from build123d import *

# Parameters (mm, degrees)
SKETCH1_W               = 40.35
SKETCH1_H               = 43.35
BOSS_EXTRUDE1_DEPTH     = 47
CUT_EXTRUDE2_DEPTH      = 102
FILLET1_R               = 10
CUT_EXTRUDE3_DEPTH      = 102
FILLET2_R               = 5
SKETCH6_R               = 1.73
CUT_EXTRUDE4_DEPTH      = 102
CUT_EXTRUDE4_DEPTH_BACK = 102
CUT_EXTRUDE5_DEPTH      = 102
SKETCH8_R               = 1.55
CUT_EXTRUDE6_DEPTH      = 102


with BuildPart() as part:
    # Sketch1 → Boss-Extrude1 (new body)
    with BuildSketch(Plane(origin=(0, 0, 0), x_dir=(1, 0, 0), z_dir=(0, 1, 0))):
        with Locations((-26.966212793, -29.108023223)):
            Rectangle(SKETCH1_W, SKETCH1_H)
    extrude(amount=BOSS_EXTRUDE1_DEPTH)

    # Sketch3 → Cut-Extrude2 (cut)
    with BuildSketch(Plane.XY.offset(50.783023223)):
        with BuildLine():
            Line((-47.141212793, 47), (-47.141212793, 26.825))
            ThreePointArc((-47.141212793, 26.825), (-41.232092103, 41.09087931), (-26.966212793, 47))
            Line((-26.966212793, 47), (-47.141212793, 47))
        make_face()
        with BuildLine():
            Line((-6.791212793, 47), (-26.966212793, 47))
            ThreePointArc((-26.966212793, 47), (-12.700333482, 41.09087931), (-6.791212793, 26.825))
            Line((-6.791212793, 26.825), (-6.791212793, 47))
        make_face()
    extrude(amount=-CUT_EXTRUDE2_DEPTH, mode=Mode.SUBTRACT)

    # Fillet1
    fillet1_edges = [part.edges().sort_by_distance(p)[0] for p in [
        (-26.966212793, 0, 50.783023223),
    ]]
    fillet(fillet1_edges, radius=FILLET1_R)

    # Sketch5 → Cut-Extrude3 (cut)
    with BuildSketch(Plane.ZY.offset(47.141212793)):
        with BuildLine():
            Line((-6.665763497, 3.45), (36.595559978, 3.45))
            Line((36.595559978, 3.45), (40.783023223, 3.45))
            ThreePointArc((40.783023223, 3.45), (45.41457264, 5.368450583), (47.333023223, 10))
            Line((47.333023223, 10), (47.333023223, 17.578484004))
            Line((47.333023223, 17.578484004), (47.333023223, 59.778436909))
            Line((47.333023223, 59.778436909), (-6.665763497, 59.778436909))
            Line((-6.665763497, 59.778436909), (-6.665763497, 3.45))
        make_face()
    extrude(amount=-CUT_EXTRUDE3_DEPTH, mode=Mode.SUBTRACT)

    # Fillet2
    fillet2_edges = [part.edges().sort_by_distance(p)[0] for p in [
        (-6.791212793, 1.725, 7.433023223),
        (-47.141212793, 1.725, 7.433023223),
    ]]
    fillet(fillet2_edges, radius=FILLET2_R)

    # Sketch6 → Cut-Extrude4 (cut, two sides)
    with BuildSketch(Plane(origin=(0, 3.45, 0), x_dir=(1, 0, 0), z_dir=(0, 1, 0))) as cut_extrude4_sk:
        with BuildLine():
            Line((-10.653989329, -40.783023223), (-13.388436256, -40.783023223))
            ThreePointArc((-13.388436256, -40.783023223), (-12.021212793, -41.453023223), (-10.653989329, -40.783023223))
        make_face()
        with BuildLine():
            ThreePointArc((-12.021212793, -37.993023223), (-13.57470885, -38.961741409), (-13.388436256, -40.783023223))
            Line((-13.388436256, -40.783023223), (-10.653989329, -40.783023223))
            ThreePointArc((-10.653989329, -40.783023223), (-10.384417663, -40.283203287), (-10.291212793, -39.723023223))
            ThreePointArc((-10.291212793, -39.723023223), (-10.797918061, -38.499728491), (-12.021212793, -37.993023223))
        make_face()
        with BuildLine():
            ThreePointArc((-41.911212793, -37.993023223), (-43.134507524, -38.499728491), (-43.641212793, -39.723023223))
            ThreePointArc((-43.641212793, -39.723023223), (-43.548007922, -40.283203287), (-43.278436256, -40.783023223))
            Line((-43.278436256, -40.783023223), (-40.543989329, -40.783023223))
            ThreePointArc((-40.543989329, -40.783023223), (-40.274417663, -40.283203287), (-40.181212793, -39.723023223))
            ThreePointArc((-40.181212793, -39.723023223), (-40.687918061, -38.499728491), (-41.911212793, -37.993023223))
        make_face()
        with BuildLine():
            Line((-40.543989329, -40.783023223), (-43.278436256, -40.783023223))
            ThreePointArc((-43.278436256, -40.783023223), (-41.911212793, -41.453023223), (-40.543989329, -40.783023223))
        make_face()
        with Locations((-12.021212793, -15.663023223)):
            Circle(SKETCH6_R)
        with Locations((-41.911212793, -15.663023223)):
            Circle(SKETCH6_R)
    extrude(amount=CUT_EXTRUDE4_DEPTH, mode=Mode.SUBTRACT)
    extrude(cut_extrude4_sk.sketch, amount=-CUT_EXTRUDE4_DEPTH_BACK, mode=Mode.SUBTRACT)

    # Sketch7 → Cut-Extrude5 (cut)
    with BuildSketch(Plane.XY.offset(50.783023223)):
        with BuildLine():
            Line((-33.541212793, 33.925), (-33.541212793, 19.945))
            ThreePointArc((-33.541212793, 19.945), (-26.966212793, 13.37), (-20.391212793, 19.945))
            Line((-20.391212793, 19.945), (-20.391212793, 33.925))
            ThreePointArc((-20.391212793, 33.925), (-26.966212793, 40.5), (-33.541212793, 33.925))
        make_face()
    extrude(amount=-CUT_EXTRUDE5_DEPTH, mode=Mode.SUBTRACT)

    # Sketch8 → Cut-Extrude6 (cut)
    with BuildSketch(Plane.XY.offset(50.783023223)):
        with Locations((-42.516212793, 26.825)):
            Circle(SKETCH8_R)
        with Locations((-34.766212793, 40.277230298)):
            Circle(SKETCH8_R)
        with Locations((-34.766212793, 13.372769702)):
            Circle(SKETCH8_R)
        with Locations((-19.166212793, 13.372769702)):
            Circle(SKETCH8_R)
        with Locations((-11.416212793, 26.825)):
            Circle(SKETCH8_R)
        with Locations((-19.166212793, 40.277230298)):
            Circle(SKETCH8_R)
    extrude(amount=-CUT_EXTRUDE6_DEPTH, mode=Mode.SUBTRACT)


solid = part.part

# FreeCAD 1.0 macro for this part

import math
import FreeCAD as App
import Part
import Sketcher


def edges_at(feature, points):
    """Names of the edges that pass closest to the given points."""
    edges = feature.Shape.Edges
    near = lambda p: min(range(len(edges)), key=lambda i: edges[i].distToShape(Part.Vertex(*p))[0])
    return sorted({f"Edge{near(p) + 1}" for p in points})

doc = App.newDocument("Part")
body = doc.addObject("PartDesign::Body", "Body")

# Sketch on XZ plane
sketch1 = body.newObject("Sketcher::SketchObject", "Sketch")
sketch1.AttachmentSupport = (doc.getObject("XZ_Plane"), [""])
sketch1.MapMode = "FlatFace"
sketch1.addGeometry(Part.LineSegment(App.Vector(-47, 7, 0), App.Vector(-47, 51, 0)), False)
sketch1.addGeometry(Part.LineSegment(App.Vector(-47, 51, 0), App.Vector(-7, 51, 0)), False)
sketch1.addGeometry(Part.LineSegment(App.Vector(-7, 51, 0), App.Vector(-7, 7, 0)), False)
sketch1.addGeometry(Part.LineSegment(App.Vector(-7, 7, 0), App.Vector(-47, 7, 0)), False)
sketch1.addConstraint(Sketcher.Constraint("Coincident", 0, 2, 1, 1))
sketch1.addConstraint(Sketcher.Constraint("Coincident", 1, 2, 2, 1))
sketch1.addConstraint(Sketcher.Constraint("Coincident", 2, 2, 3, 1))
sketch1.addConstraint(Sketcher.Constraint("Coincident", 3, 2, 0, 1))
sketch1.addConstraint(Sketcher.Constraint("Vertical", 0))
sketch1.addConstraint(Sketcher.Constraint("Horizontal", 1))
sketch1.addConstraint(Sketcher.Constraint("Vertical", 2))
sketch1.addConstraint(Sketcher.Constraint("Horizontal", 3))
sketch1.addConstraint(Sketcher.Constraint("DistanceX", 1, 1, 1, 2, 40.35))
sketch1.addConstraint(Sketcher.Constraint("DistanceY", 0, 1, 0, 2, 43.35))
sketch1.addConstraint(Sketcher.Constraint("DistanceX", 0, 2, -1, 1, 47.141213))
sketch1.addConstraint(Sketcher.Constraint("DistanceY", -1, 1, 0, 2, 50.783023))
pad1 = body.newObject("PartDesign::Pad", "Pad")
pad1.Profile = sketch1
pad1.Length = 47
pad1.Reversed = True

# Sketch on XY plane
sketch2 = body.newObject("Sketcher::SketchObject", "Sketch001")
sketch2.AttachmentSupport = (doc.getObject("XY_Plane"), [""])
sketch2.MapMode = "FlatFace"
sketch2.AttachmentOffset = App.Placement(App.Vector(0, 0, 50.783023), App.Rotation())
sketch2.addGeometry(Part.LineSegment(App.Vector(-47, 47, 0), App.Vector(-47, 27, 0)), False)
sketch2.addGeometry(Part.ArcOfCircle(Part.Circle(App.Vector(-27, 27, 0), App.Vector(0, 0, 1), 20), math.radians(90), math.radians(180)), False)
sketch2.addGeometry(Part.LineSegment(App.Vector(-27, 47, 0), App.Vector(-47, 47, 0)), False)
sketch2.addGeometry(Part.LineSegment(App.Vector(-7, 47, 0), App.Vector(-27, 47, 0)), False)
sketch2.addGeometry(Part.ArcOfCircle(Part.Circle(App.Vector(-27, 27, 0), App.Vector(0, 0, 1), 20), math.radians(0), math.radians(90)), False)
sketch2.addGeometry(Part.LineSegment(App.Vector(-7, 27, 0), App.Vector(-7, 47, 0)), False)
sketch2.addConstraint(Sketcher.Constraint("Tangent", 0, 2, 1, 2))
sketch2.addConstraint(Sketcher.Constraint("Tangent", 1, 1, 2, 1))
sketch2.addConstraint(Sketcher.Constraint("Coincident", 2, 2, 0, 1))
sketch2.addConstraint(Sketcher.Constraint("Tangent", 3, 2, 4, 2))
sketch2.addConstraint(Sketcher.Constraint("Tangent", 4, 1, 5, 1))
sketch2.addConstraint(Sketcher.Constraint("Coincident", 5, 2, 3, 1))
sketch2.addConstraint(Sketcher.Constraint("Vertical", 0))
sketch2.addConstraint(Sketcher.Constraint("Horizontal", 2))
sketch2.addConstraint(Sketcher.Constraint("Horizontal", 3))
sketch2.addConstraint(Sketcher.Constraint("Vertical", 5))
sketch2.addConstraint(Sketcher.Constraint("Coincident", 4, 3, 1, 3))
sketch2.addConstraint(Sketcher.Constraint("Equal", 1, 4))
sketch2.addConstraint(Sketcher.Constraint("DistanceY", -1, 1, 1, 1, 47.0))
sketch2.addConstraint(Sketcher.Constraint("Radius", 1, 20.175))
sketch2.addConstraint(Sketcher.Constraint("DistanceX", 1, 3, -1, 1, 26.966213))
pocket1 = body.newObject("PartDesign::Pocket", "Pocket")
pocket1.Profile = sketch2
pocket1.Length = 102
doc.recompute()

fillet = body.newObject("PartDesign::Fillet", "Fillet")
fillet.Base = (pocket1, edges_at(pocket1, [(-26.966, 0, 50.783)]))
fillet.Radius = 10

# Sketch on YZ plane
sketch3 = body.newObject("Sketcher::SketchObject", "Sketch002")
sketch3.AttachmentSupport = (doc.getObject("YZ_Plane"), [""])
sketch3.MapMode = "FlatFace"
sketch3.AttachmentOffset = App.Placement(App.Vector(0, 0, -47.141213), App.Rotation())
sketch3.addGeometry(Part.LineSegment(App.Vector(3, -7, 0), App.Vector(3, 41, 0)), False)
sketch3.addGeometry(Part.ArcOfCircle(Part.Circle(App.Vector(10, 41, 0), App.Vector(0, 0, 1), 7), math.radians(90), math.radians(180)), False)
sketch3.addGeometry(Part.LineSegment(App.Vector(10, 47, 0), App.Vector(60, 47, 0)), False)
sketch3.addGeometry(Part.LineSegment(App.Vector(60, 47, 0), App.Vector(60, -7, 0)), False)
sketch3.addGeometry(Part.LineSegment(App.Vector(60, -7, 0), App.Vector(3, -7, 0)), False)
sketch3.addConstraint(Sketcher.Constraint("Tangent", 0, 2, 1, 2))
sketch3.addConstraint(Sketcher.Constraint("Tangent", 1, 1, 2, 1))
sketch3.addConstraint(Sketcher.Constraint("Coincident", 2, 2, 3, 1))
sketch3.addConstraint(Sketcher.Constraint("Coincident", 3, 2, 4, 1))
sketch3.addConstraint(Sketcher.Constraint("Coincident", 4, 2, 0, 1))
sketch3.addConstraint(Sketcher.Constraint("Vertical", 0))
sketch3.addConstraint(Sketcher.Constraint("Horizontal", 2))
sketch3.addConstraint(Sketcher.Constraint("Vertical", 3))
sketch3.addConstraint(Sketcher.Constraint("Horizontal", 4))
sketch3.addConstraint(Sketcher.Constraint("Radius", 1, 6.55))
sketch3.addConstraint(Sketcher.Constraint("DistanceX", -1, 1, 1, 3, 10.0))
sketch3.addConstraint(Sketcher.Constraint("DistanceX", 2, 1, 2, 2, 49.778437))
sketch3.addConstraint(Sketcher.Constraint("DistanceY", 0, 1, 0, 2, 47.448787))
sketch3.addConstraint(Sketcher.Constraint("DistanceY", -1, 1, 1, 3, 40.783023))
pocket2 = body.newObject("PartDesign::Pocket", "Pocket001")
pocket2.Profile = sketch3
pocket2.Length = 102
pocket2.Reversed = True
doc.recompute()

fillet2 = body.newObject("PartDesign::Fillet", "Fillet001")
fillet2.Base = (pocket2, edges_at(pocket2, [(-6.791, 1.725, 7.433), (-47.141, 1.725, 7.433)]))
fillet2.Radius = 5

# Sketch on XZ plane
sketch4 = body.newObject("Sketcher::SketchObject", "Sketch003")
sketch4.AttachmentSupport = (doc.getObject("XZ_Plane"), [""])
sketch4.MapMode = "FlatFace"
sketch4.AttachmentOffset = App.Placement(App.Vector(0, 0, -3.45), App.Rotation())
sketch4.addGeometry(Part.ArcOfCircle(Part.Circle(App.Vector(-12, 39.7, 0), App.Vector(0, 0, 1), 1.7), math.radians(38), math.radians(142)), False)
sketch4.addGeometry(Part.ArcOfCircle(Part.Circle(App.Vector(-12, 39.7, 0), App.Vector(0, 0, 1), 1.7), math.radians(0), math.radians(38)), False)
sketch4.addGeometry(Part.ArcOfCircle(Part.Circle(App.Vector(-12, 39.7, 0), App.Vector(0, 0, 1), 1.7), math.radians(-90), math.radians(0)), False)
sketch4.addGeometry(Part.ArcOfCircle(Part.Circle(App.Vector(-12, 39.7, 0), App.Vector(0, 0, 1), 1.7), math.radians(142), math.radians(270)), False)
sketch4.addGeometry(Part.ArcOfCircle(Part.Circle(App.Vector(-41.9, 39.7, 0), App.Vector(0, 0, 1), 1.7), math.radians(0), math.radians(38)), False)
sketch4.addGeometry(Part.ArcOfCircle(Part.Circle(App.Vector(-41.9, 39.7, 0), App.Vector(0, 0, 1), 1.7), math.radians(-90), math.radians(0)), False)
sketch4.addGeometry(Part.ArcOfCircle(Part.Circle(App.Vector(-41.9, 39.7, 0), App.Vector(0, 0, 1), 1.7), math.radians(180), math.radians(270)), False)
sketch4.addGeometry(Part.ArcOfCircle(Part.Circle(App.Vector(-41.9, 39.7, 0), App.Vector(0, 0, 1), 1.7), math.radians(142), math.radians(180)), False)
sketch4.addGeometry(Part.ArcOfCircle(Part.Circle(App.Vector(-41.9, 39.7, 0), App.Vector(0, 0, 1), 1.7), math.radians(38), math.radians(142)), False)
sketch4.addGeometry(Part.Circle(App.Vector(-12, 15.7, 0), App.Vector(0, 0, 1), 1.7), False)
sketch4.addGeometry(Part.Circle(App.Vector(-41.9, 15.7, 0), App.Vector(0, 0, 1), 1.7), False)
sketch4.addConstraint(Sketcher.Constraint("Tangent", 0, 1, 1, 2))
sketch4.addConstraint(Sketcher.Constraint("Tangent", 1, 1, 2, 2))
sketch4.addConstraint(Sketcher.Constraint("Tangent", 2, 1, 3, 2))
sketch4.addConstraint(Sketcher.Constraint("Tangent", 3, 1, 0, 2))
sketch4.addConstraint(Sketcher.Constraint("Tangent", 4, 1, 5, 2))
sketch4.addConstraint(Sketcher.Constraint("Tangent", 5, 1, 6, 2))
sketch4.addConstraint(Sketcher.Constraint("Tangent", 6, 1, 7, 2))
sketch4.addConstraint(Sketcher.Constraint("Tangent", 7, 1, 8, 2))
sketch4.addConstraint(Sketcher.Constraint("Tangent", 8, 1, 4, 2))
sketch4.addConstraint(Sketcher.Constraint("Coincident", 6, 3, 4, 3))
sketch4.addConstraint(Sketcher.Constraint("Equal", 0, 1))
sketch4.addConstraint(Sketcher.Constraint("Equal", 3, 4))
sketch4.addConstraint(Sketcher.Constraint("Equal", 8, 9))
sketch4.addConstraint(Sketcher.Constraint("Equal", 9, 10))
sketch4.addConstraint(Sketcher.Constraint("Horizontal", 3, 3, 4, 3))
sketch4.addConstraint(Sketcher.Constraint("Horizontal", 9, 3, 10, 3))
sketch4.addConstraint(Sketcher.Constraint("Horizontal", 8, 3, 1, 1))
sketch4.addConstraint(Sketcher.Constraint("Horizontal", 0, 1, 3, 1))
sketch4.addConstraint(Sketcher.Constraint("Horizontal", 1, 1, 4, 1))
sketch4.addConstraint(Sketcher.Constraint("Horizontal", 4, 1, 6, 1))
sketch4.addConstraint(Sketcher.Constraint("Horizontal", 3, 1, 7, 1))
sketch4.addConstraint(Sketcher.Constraint("Horizontal", 7, 1, 8, 1))
sketch4.addConstraint(Sketcher.Constraint("Vertical", 3, 3, 9, 3))
sketch4.addConstraint(Sketcher.Constraint("Vertical", 8, 3, 10, 3))
sketch4.addConstraint(Sketcher.Constraint("Vertical", 9, 3, 2, 1))
sketch4.addConstraint(Sketcher.Constraint("Vertical", 10, 3, 5, 1))
sketch4.addConstraint(Sketcher.Constraint("Diameter", 9, 3.46))
sketch4.addConstraint(Sketcher.Constraint("DistanceX", 4, 3, 0, 3, 29.89))
sketch4.addConstraint(Sketcher.Constraint("DistanceY", 9, 3, 2, 3, 24.06))
sketch4.addConstraint(Sketcher.Constraint("DistanceY", 1, 3, 0, 1, 1.06))
sketch4.addConstraint(Sketcher.Constraint("DistanceX", 0, 1, -1, 1, 10.653989))
sketch4.addConstraint(Sketcher.Constraint("DistanceY", -1, 1, 0, 3, 39.723023))
pocket3 = body.newObject("PartDesign::Pocket", "Pocket002")
pocket3.Profile = sketch4
pocket3.Type = "ThroughAll"
pocket3.Midplane = True

# Sketch on XY plane
sketch5 = body.newObject("Sketcher::SketchObject", "Sketch004")
sketch5.AttachmentSupport = (doc.getObject("XY_Plane"), [""])
sketch5.MapMode = "FlatFace"
sketch5.AttachmentOffset = App.Placement(App.Vector(0, 0, 50.783023), App.Rotation())
sketch5.addGeometry(Part.LineSegment(App.Vector(-34, 34, 0), App.Vector(-34, 20, 0)), False)
sketch5.addGeometry(Part.ArcOfCircle(Part.Circle(App.Vector(-27, 20, 0), App.Vector(0, 0, 1), 7), math.radians(180), math.radians(360)), False)
sketch5.addGeometry(Part.LineSegment(App.Vector(-20, 20, 0), App.Vector(-20, 34, 0)), False)
sketch5.addGeometry(Part.ArcOfCircle(Part.Circle(App.Vector(-27, 34, 0), App.Vector(0, 0, 1), 7), math.radians(0), math.radians(180)), False)
sketch5.addConstraint(Sketcher.Constraint("Tangent", 0, 2, 1, 1))
sketch5.addConstraint(Sketcher.Constraint("Tangent", 1, 2, 2, 1))
sketch5.addConstraint(Sketcher.Constraint("Tangent", 2, 2, 3, 1))
sketch5.addConstraint(Sketcher.Constraint("Tangent", 3, 2, 0, 1))
sketch5.addConstraint(Sketcher.Constraint("Vertical", 0))
sketch5.addConstraint(Sketcher.Constraint("Vertical", 2))
sketch5.addConstraint(Sketcher.Constraint("Radius", 1, 6.575))
sketch5.addConstraint(Sketcher.Constraint("DistanceY", 0, 2, 0, 1, 13.98))
sketch5.addConstraint(Sketcher.Constraint("DistanceY", -1, 1, 1, 3, 19.945))
sketch5.addConstraint(Sketcher.Constraint("DistanceX", 1, 3, -1, 1, 26.966213))
pocket4 = body.newObject("PartDesign::Pocket", "Pocket003")
pocket4.Profile = sketch5
pocket4.Length = 102

# Sketch on XY plane
sketch6 = body.newObject("Sketcher::SketchObject", "Sketch005")
sketch6.AttachmentSupport = (doc.getObject("XY_Plane"), [""])
sketch6.MapMode = "FlatFace"
sketch6.AttachmentOffset = App.Placement(App.Vector(0, 0, 50.783023), App.Rotation())
sketch6.addGeometry(Part.Circle(App.Vector(-42.5, 26.8, 0), App.Vector(0, 0, 1), 1.6), False)
sketch6.addGeometry(Part.Circle(App.Vector(-34.8, 40.3, 0), App.Vector(0, 0, 1), 1.6), False)
sketch6.addGeometry(Part.Circle(App.Vector(-34.8, 13.4, 0), App.Vector(0, 0, 1), 1.6), False)
sketch6.addGeometry(Part.Circle(App.Vector(-19.2, 13.4, 0), App.Vector(0, 0, 1), 1.6), False)
sketch6.addGeometry(Part.Circle(App.Vector(-11.4, 26.8, 0), App.Vector(0, 0, 1), 1.6), False)
sketch6.addGeometry(Part.Circle(App.Vector(-19.2, 40.3, 0), App.Vector(0, 0, 1), 1.6), False)
sketch6.addConstraint(Sketcher.Constraint("Equal", 0, 1))
sketch6.addConstraint(Sketcher.Constraint("Equal", 1, 2))
sketch6.addConstraint(Sketcher.Constraint("Equal", 2, 3))
sketch6.addConstraint(Sketcher.Constraint("Equal", 3, 4))
sketch6.addConstraint(Sketcher.Constraint("Equal", 4, 5))
sketch6.addConstraint(Sketcher.Constraint("Horizontal", 2, 3, 3, 3))
sketch6.addConstraint(Sketcher.Constraint("Horizontal", 0, 3, 4, 3))
sketch6.addConstraint(Sketcher.Constraint("Horizontal", 1, 3, 5, 3))
sketch6.addConstraint(Sketcher.Constraint("Vertical", 1, 3, 2, 3))
sketch6.addConstraint(Sketcher.Constraint("Vertical", 3, 3, 5, 3))
sketch6.addConstraint(Sketcher.Constraint("Diameter", 0, 3.1))
sketch6.addConstraint(Sketcher.Constraint("DistanceX", 2, 3, 3, 3, 15.6))
sketch6.addConstraint(Sketcher.Constraint("DistanceX", 0, 3, 4, 3, 31.1))
sketch6.addConstraint(Sketcher.Constraint("DistanceX", 0, 3, 1, 3, 7.75))
sketch6.addConstraint(Sketcher.Constraint("DistanceY", -1, 1, 0, 3, 26.825))
sketch6.addConstraint(Sketcher.Constraint("DistanceY", -1, 1, 1, 3, 40.27723))
sketch6.addConstraint(Sketcher.Constraint("DistanceY", -1, 1, 2, 3, 13.37277))
sketch6.addConstraint(Sketcher.Constraint("DistanceX", 0, 3, -1, 1, 42.516213))
pocket5 = body.newObject("PartDesign::Pocket", "Pocket004")
pocket5.Profile = sketch6
pocket5.Length = 102

doc.recompute()
